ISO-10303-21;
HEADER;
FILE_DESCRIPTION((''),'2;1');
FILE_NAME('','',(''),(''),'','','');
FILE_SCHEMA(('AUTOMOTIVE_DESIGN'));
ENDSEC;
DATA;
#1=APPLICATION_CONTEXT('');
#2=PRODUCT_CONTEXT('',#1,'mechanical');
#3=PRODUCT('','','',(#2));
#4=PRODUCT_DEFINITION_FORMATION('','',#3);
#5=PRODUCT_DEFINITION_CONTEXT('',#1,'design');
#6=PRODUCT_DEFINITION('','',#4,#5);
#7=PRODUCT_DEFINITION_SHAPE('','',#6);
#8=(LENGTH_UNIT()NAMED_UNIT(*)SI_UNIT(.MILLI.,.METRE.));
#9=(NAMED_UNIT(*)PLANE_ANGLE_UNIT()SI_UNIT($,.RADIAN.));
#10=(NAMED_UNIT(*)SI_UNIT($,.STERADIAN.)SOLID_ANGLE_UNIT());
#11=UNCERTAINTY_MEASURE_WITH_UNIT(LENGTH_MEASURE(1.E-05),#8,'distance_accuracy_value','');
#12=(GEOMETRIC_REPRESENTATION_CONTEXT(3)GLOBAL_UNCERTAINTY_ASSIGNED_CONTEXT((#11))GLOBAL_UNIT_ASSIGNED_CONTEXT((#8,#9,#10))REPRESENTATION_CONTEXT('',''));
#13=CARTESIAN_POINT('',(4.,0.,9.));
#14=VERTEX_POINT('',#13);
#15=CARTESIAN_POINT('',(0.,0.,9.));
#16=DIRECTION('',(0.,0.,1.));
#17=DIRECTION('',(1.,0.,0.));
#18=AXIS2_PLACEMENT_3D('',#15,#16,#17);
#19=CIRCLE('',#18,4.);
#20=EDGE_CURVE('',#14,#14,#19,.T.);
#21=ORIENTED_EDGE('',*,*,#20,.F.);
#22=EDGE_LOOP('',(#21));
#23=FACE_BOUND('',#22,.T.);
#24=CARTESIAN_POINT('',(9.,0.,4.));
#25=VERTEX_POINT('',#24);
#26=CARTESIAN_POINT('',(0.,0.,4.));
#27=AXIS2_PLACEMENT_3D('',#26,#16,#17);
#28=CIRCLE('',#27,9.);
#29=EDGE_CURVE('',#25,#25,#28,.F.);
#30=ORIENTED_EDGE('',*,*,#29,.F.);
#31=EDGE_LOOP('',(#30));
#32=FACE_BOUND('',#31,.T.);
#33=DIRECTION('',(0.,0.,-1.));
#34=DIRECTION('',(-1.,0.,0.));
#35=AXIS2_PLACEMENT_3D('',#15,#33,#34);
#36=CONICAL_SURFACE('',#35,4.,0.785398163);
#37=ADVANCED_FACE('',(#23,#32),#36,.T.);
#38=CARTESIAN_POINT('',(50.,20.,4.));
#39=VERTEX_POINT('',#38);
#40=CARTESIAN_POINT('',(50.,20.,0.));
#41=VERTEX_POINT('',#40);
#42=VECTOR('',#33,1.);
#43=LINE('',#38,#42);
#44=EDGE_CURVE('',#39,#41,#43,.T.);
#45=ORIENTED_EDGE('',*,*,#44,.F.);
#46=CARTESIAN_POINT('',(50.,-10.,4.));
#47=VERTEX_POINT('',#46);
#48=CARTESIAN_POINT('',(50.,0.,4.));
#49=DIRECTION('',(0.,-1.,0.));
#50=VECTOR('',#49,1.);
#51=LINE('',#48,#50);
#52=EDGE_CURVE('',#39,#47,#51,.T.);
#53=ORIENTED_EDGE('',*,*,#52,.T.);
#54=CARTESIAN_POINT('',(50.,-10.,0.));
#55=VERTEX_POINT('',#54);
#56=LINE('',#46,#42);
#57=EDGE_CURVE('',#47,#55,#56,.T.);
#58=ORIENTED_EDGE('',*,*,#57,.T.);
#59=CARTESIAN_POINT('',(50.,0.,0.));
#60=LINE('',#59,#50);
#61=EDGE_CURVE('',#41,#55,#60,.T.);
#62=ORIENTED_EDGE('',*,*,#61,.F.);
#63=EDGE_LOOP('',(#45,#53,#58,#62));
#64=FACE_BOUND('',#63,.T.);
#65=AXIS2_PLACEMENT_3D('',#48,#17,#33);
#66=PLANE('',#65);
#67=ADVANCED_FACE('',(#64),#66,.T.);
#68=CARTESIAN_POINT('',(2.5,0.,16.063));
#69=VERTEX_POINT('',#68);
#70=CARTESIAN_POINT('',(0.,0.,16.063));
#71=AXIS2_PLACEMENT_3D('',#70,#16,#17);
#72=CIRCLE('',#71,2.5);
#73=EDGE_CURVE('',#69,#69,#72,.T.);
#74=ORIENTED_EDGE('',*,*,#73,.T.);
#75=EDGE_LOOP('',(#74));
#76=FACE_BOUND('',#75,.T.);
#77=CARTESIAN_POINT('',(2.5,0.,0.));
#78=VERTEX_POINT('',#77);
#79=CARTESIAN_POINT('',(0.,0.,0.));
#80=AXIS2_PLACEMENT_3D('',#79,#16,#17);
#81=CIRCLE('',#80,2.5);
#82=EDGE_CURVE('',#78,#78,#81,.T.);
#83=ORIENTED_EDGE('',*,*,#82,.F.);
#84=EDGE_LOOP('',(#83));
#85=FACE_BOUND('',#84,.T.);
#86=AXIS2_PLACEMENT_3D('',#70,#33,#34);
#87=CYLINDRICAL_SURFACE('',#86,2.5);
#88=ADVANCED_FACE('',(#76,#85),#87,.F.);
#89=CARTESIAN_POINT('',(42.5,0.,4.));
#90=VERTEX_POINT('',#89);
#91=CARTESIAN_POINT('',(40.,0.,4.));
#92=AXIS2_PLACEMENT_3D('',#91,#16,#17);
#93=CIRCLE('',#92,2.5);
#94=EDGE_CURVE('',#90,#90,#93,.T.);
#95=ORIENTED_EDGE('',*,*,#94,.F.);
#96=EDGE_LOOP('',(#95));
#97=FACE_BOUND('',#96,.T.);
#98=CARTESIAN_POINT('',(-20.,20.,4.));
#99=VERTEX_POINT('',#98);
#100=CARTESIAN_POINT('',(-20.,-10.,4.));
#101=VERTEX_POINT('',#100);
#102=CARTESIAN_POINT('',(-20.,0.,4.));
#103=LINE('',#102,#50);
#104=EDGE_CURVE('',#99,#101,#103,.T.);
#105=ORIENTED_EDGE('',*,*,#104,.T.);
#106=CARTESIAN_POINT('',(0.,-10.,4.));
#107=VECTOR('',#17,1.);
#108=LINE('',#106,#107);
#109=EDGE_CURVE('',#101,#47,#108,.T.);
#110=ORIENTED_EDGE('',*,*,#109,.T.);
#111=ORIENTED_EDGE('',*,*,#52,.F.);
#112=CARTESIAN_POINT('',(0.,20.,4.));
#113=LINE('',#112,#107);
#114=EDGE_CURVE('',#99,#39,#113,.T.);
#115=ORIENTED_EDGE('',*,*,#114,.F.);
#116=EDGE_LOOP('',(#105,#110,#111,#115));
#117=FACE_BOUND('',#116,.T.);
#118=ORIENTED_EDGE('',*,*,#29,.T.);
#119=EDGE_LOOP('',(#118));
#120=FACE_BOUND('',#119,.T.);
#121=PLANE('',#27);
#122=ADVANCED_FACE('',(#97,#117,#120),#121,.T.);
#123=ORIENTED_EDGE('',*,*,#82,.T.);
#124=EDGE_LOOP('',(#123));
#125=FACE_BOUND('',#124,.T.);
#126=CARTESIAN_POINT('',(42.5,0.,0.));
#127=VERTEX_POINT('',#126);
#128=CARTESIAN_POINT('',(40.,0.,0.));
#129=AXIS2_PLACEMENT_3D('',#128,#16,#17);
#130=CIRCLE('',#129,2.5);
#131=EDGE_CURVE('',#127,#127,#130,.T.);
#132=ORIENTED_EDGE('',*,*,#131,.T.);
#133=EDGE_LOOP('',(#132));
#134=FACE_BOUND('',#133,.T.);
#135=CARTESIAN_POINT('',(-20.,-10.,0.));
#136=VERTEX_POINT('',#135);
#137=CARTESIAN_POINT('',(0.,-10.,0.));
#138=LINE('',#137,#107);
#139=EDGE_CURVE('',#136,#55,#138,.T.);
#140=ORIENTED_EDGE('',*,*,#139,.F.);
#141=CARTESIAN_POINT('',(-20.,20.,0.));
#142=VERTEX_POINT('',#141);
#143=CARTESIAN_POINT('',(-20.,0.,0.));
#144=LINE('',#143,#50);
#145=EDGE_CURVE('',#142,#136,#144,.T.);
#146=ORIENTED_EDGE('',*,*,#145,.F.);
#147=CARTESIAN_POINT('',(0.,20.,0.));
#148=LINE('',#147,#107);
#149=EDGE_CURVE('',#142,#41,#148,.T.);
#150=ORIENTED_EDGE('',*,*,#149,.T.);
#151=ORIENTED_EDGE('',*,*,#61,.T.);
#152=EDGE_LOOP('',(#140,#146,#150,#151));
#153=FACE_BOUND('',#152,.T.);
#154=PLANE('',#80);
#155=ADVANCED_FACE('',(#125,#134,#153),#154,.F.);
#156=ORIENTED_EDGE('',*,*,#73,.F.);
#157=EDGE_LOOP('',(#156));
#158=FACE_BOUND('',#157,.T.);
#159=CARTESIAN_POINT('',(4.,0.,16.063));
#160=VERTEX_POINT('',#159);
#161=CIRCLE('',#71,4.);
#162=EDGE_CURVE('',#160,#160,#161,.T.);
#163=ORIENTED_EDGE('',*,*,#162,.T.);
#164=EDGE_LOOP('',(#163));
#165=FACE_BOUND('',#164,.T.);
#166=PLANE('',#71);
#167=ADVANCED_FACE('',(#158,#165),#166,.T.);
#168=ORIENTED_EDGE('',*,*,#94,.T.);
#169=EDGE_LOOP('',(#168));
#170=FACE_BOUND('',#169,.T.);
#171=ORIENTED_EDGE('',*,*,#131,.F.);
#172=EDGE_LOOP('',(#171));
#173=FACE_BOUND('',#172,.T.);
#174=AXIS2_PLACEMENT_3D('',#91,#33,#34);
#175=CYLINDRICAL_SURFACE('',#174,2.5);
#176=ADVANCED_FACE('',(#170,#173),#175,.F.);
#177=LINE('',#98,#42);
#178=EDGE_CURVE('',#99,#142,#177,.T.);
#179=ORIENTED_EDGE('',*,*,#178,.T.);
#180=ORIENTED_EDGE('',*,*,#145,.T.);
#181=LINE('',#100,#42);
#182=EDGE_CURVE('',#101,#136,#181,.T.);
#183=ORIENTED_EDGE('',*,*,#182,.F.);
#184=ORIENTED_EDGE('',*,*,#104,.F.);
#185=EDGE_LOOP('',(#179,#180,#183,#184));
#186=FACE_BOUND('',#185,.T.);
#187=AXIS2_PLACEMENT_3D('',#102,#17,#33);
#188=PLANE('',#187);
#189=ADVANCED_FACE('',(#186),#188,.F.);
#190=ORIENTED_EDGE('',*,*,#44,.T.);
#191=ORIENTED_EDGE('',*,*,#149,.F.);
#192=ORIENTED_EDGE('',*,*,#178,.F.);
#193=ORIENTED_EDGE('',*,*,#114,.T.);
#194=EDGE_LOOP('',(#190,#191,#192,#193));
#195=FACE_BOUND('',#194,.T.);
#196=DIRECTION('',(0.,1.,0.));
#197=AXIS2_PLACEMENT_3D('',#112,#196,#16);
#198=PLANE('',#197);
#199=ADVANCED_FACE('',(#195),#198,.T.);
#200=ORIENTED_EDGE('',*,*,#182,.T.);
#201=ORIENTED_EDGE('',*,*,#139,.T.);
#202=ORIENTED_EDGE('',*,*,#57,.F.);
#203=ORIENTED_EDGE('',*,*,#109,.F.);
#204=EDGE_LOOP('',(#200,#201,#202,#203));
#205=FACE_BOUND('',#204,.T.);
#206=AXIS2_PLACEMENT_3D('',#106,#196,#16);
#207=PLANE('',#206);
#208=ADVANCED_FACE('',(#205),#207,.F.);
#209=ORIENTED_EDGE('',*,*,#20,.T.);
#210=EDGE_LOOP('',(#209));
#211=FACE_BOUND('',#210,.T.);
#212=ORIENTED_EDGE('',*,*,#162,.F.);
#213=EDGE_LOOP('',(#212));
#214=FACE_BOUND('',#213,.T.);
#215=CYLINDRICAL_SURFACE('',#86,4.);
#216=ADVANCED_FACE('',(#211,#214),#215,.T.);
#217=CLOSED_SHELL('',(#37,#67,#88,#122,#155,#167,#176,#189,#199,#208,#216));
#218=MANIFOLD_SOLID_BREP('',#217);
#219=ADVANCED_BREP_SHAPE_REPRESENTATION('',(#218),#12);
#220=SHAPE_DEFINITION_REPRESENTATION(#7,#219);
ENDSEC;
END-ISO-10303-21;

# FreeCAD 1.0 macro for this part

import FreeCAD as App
import Part
import Sketcher
from FreeCAD import Vector
Q = App.Units.Quantity


def edges_at(feature, points):
    """Names of the edges that pass closest to the given points."""
    edges = feature.Shape.Edges
    near = lambda p: min(range(len(edges)), key=lambda i: edges[i].distToShape(Part.Vertex(*p))[0])
    return sorted({f"Edge{near(p) + 1}" for p in points})

doc = App.newDocument("Part")
body = doc.addObject("PartDesign::Body", "Body")

# Sketch on XY plane
sketch1 = body.newObject("Sketcher::SketchObject", "Sketch")
sketch1.AttachmentSupport = (doc.getObject("XY_Plane"), [""])
sketch1.MapMode = "FlatFace"
sketch1.addGeometry([
    Part.LineSegment(Vector(-20, 20, 0), Vector(-20, -10, 0)),  # 0
    Part.LineSegment(Vector(-20, -10, 0), Vector(50, -10, 0)),  # 1
    Part.LineSegment(Vector(50, -10, 0), Vector(50, 20, 0)),  # 2
    Part.LineSegment(Vector(50, 20, 0), Vector(-20, 20, 0)),  # 3
    Part.Circle(Vector(0, 0, 0), Vector(0, 0, 1), 4),  # 4
    Part.Circle(Vector(40, 0, 0), Vector(0, 0, 1), 2.5),  # 5
], False)
sketch1.addConstraint([
    Sketcher.Constraint("Coincident", 0, 2, 1, 1),
    Sketcher.Constraint("Coincident", 1, 2, 2, 1),
    Sketcher.Constraint("Coincident", 2, 2, 3, 1),
    Sketcher.Constraint("Coincident", 3, 2, 0, 1),
    Sketcher.Constraint("Vertical", 0),
    Sketcher.Constraint("Horizontal", 1),
    Sketcher.Constraint("Vertical", 2),
    Sketcher.Constraint("Horizontal", 3),
    Sketcher.Constraint("Coincident", 4, 3, -1, 1),
    Sketcher.Constraint("PointOnObject", 5, 3, -1),
    Sketcher.Constraint("Diameter", 4, Q("8 mm")),
    Sketcher.Constraint("Diameter", 5, Q("5 mm")),
    Sketcher.Constraint("DistanceX", 1, 1, 1, 2, Q("70 mm")),
    Sketcher.Constraint("DistanceY", 0, 2, 0, 1, Q("30 mm")),
    Sketcher.Constraint("DistanceX", -1, 1, 5, 3, Q("40 mm")),
    Sketcher.Constraint("DistanceX", 0, 2, -1, 1, Q("20 mm")),
    Sketcher.Constraint("DistanceY", 0, 2, -1, 1, Q("10 mm")),
])
pad1 = body.newObject("PartDesign::Pad", "Pad")
pad1.Profile = sketch1
pad1.Length = 4

# Sketch on XY plane
sketch2 = body.newObject("Sketcher::SketchObject", "Sketch001")
sketch2.AttachmentSupport = (doc.getObject("XY_Plane"), [""])
sketch2.MapMode = "FlatFace"
sketch2.addGeometry([
    Part.Circle(Vector(0, 0, 0), Vector(0, 0, 1), 4),
    Part.Circle(Vector(0, 0, 0), Vector(0, 0, 1), 2.5),
], False)
sketch2.addConstraint([
    Sketcher.Constraint("Coincident", 0, 3, -1, 1),
    Sketcher.Constraint("Coincident", 1, 3, -1, 1),
    Sketcher.Constraint("Diameter", 0, Q("8 mm")),
    Sketcher.Constraint("Diameter", 1, Q("5 mm")),
])
pad2 = body.newObject("PartDesign::Pad", "Pad001")
pad2.Profile = sketch2
pad2.Length = 16.063
doc.recompute()

chamfer = body.newObject("PartDesign::Chamfer", "Chamfer")
chamfer.Base = (pad2, edges_at(pad2, [(-4, 0, 4)]))
chamfer.Size = 5

doc.recompute()
